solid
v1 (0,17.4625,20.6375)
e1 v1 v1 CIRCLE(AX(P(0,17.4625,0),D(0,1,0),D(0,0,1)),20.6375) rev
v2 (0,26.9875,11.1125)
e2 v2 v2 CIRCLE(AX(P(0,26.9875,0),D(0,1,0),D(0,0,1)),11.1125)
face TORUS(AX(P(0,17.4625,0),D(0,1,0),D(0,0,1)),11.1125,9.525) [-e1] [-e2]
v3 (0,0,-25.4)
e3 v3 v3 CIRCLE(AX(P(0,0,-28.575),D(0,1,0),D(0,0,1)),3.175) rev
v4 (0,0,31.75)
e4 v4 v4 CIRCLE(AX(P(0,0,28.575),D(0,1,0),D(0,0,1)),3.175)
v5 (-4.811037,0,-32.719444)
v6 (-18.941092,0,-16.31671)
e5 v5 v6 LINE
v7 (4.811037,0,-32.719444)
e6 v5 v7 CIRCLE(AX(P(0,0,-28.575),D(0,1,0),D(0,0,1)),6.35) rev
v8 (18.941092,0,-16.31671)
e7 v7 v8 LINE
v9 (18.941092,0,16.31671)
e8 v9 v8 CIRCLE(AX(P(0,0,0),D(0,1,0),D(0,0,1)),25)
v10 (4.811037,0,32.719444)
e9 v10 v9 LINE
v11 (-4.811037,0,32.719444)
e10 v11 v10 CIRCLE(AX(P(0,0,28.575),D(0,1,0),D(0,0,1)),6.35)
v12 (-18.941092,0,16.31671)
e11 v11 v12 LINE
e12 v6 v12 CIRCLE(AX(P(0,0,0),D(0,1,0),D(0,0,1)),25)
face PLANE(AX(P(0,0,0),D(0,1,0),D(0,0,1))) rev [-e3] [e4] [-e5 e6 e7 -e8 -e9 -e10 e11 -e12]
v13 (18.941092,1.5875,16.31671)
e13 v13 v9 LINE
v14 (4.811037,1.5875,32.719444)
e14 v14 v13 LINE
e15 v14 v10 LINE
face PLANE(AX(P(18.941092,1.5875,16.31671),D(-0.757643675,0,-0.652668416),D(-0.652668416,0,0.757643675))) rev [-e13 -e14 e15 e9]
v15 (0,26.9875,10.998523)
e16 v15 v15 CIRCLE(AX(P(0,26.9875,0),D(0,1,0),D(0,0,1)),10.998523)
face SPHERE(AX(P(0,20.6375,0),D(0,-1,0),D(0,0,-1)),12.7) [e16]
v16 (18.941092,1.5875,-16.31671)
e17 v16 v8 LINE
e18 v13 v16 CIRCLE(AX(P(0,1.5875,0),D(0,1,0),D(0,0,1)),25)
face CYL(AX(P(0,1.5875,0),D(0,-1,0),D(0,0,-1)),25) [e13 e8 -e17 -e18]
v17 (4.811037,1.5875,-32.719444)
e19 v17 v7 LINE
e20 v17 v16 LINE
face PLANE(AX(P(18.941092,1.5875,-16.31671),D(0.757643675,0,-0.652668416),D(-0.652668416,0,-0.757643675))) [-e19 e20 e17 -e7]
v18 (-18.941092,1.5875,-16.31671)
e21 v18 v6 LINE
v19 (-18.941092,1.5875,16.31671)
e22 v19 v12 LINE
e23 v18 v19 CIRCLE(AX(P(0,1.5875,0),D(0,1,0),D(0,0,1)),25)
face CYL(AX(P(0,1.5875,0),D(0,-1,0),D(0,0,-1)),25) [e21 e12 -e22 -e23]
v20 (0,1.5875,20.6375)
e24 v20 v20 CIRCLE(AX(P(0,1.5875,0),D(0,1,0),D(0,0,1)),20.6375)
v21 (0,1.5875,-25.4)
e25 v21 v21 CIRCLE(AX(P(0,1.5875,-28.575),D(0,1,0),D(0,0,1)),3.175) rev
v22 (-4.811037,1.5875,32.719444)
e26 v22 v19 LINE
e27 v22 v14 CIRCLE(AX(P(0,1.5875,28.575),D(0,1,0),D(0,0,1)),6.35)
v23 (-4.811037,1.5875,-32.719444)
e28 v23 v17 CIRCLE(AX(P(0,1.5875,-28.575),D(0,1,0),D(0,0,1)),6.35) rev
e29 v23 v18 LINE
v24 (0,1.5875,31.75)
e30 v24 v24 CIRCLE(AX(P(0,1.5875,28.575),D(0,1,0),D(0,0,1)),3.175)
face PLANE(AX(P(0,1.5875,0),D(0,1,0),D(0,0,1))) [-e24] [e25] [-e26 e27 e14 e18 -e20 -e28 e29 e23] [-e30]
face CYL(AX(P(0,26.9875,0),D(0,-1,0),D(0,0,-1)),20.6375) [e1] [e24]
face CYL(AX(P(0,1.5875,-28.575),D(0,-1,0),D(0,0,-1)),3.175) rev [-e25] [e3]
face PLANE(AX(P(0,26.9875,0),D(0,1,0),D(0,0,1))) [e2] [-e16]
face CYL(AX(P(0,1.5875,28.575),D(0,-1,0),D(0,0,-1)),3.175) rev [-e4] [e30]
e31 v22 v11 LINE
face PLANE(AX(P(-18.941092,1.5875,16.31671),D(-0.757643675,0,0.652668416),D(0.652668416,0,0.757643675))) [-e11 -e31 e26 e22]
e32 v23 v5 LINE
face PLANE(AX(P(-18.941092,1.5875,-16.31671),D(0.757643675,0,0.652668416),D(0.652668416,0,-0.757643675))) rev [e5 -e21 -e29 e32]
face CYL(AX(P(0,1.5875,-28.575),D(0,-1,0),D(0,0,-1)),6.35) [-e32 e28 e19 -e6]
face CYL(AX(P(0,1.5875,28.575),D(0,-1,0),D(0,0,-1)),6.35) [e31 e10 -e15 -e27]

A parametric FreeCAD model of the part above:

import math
import FreeCAD as App
import Part
import Sketcher

V = App.Vector
Q = App.Units.Quantity


def edges_at(feature, points):
    """Names of the edges that pass closest to the given points."""
    edges = feature.Shape.Edges
    near = lambda p: min(range(len(edges)), key=lambda i: edges[i].distToShape(Part.Vertex(*p))[0])
    return sorted({f"Edge{near(p) + 1}" for p in points})

doc = App.newDocument("Part")
body = doc.addObject("PartDesign::Body", "Body")

# Sketch on XZ plane
sketch1 = doc.addObject("Sketcher::SketchObject", "Sketch")
body.addObject(sketch1)
sketch1.AttachmentSupport = (doc.XZ_Plane, [""])
sketch1.MapMode = "FlatFace"
sketch1.addGeometry([
    Part.ArcOfCircle(Part.Circle(V(0, 0, 0), V(0, 0, 1), 25), math.radians(139.256908), math.radians(220.743092)),  # 0
    Part.LineSegment(V(-18.941092, 16.31671, 0), V(-4.811037, 32.719444, 0)),  # 1
    Part.ArcOfCircle(Part.Circle(V(0, 28.575, 0), V(0, 0, 1), 6.35), math.radians(40.743092), math.radians(139.256908)),  # 2
    Part.LineSegment(V(4.811037, 32.719444, 0), V(18.941092, 16.31671, 0)),  # 3
    Part.ArcOfCircle(Part.Circle(V(0, 0, 0), V(0, 0, 1), 25), math.radians(-40.743092), math.radians(40.743092)),  # 4
    Part.LineSegment(V(18.941092, -16.31671, 0), V(4.811037, -32.719444, 0)),  # 5
    Part.ArcOfCircle(Part.Circle(V(0, -28.575, 0), V(0, 0, 1), 6.35), math.radians(-139.256908), math.radians(-40.743092)),  # 6
    Part.LineSegment(V(-4.811037, -32.719444, 0), V(-18.941092, -16.31671, 0)),  # 7
    Part.Circle(V(0, 28.575, 0), V(0, 0, 1), 3.175),  # 8
    Part.Circle(V(0, -28.575, 0), V(0, 0, 1), 3.175),  # 9
], False)
sketch1.addConstraint([
    Sketcher.Constraint("Tangent", 0, 1, 1, 1),
    Sketcher.Constraint("Tangent", 1, 2, 2, 2),
    Sketcher.Constraint("Tangent", 2, 1, 3, 1),
    Sketcher.Constraint("Tangent", 3, 2, 4, 2),
    Sketcher.Constraint("Tangent", 4, 1, 5, 1),
    Sketcher.Constraint("Tangent", 5, 2, 6, 2),
    Sketcher.Constraint("Tangent", 6, 1, 7, 1),
    Sketcher.Constraint("Tangent", 7, 2, 0, 2),
    Sketcher.Constraint("Coincident", 0, 3, -1, 1),
    Sketcher.Constraint("Coincident", 4, 3, -1, 1),
    Sketcher.Constraint("Coincident", 8, 3, 2, 3),
    Sketcher.Constraint("Coincident", 9, 3, 6, 3),
    Sketcher.Constraint("Equal", 0, 4),
    Sketcher.Constraint("Equal", 2, 6),
    Sketcher.Constraint("Equal", 8, 9),
    Sketcher.Constraint("Symmetric", 2, 3, 6, 3, -1, 1),
    Sketcher.Constraint("PointOnObject", 2, 3, -2),
    Sketcher.Constraint("Diameter", 8, Q("0.25 in")),
    Sketcher.Constraint("Radius", 2, Q("0.25 in")),
    Sketcher.Constraint("Radius", 0, Q("25 mm")),
    Sketcher.Constraint("DistanceY", 6, 3, 2, 3, Q("2.25 in")),
])
pad1 = doc.addObject("PartDesign::Pad", "Pad")
body.addObject(pad1)
pad1.Profile = sketch1
pad1.Length = Q("0.0625 in")
pad1.Reversed = True

# Sketch on XZ plane
sketch2 = doc.addObject("Sketcher::SketchObject", "Sketch001")
body.addObject(sketch2)
sketch2.AttachmentSupport = (doc.XZ_Plane, [""])
sketch2.MapMode = "FlatFace"
sketch2.AttachmentOffset = App.Placement(V(0, 0, -0.0625 * 25.4), App.Rotation())
sketch2.addGeometry(Part.Circle(V(0, 0, 0), V(0, 0, 1), 20.6375), False)
sketch2.addConstraint([
    Sketcher.Constraint("Coincident", 0, 3, -1, 1),
    Sketcher.Constraint("Diameter", 0, Q("1.625 in")),
])
pad2 = doc.addObject("PartDesign::Pad", "Pad001")
body.addObject(pad2)
pad2.Profile = sketch2
pad2.Length = Q("1 in")
pad2.Reversed = True
doc.recompute()

fillet = doc.addObject("PartDesign::Fillet", "Fillet")
body.addObject(fillet)
fillet.Base = (pad2, edges_at(pad2, [(0, 26.988, -20.637)]))
fillet.Radius = Q("0.375 in")

# Sketch on YZ plane
sketch3 = doc.addObject("Sketcher::SketchObject", "Sketch002")
body.addObject(sketch3)
sketch3.AttachmentSupport = (doc.YZ_Plane, [""])
sketch3.MapMode = "FlatFace"
sketch3.addGeometry([
    Part.LineSegment(V(26.9875, 0, 0), V(26.9875, -10.998523, 0)),
    Part.ArcOfCircle(Part.Circle(V(20.6375, 0, 0), V(0, 0, 1), 12.7), math.radians(-60), math.radians(0)),
    Part.LineSegment(V(33.3375, 0, 0), V(26.9875, 0, 0)),
], False)
sketch3.addConstraint([
    Sketcher.Constraint("Coincident", 0, 2, 1, 1),
    Sketcher.Constraint("Coincident", 1, 2, 2, 1),
    Sketcher.Constraint("Coincident", 2, 2, 0, 1),
    Sketcher.Constraint("Vertical", 0),
    Sketcher.Constraint("Horizontal", 2),
    Sketcher.Constraint("PointOnObject", 1, 3, -1),
    Sketcher.Constraint("PointOnObject", 1, 2, -1),
    Sketcher.Constraint("Radius", 1, Q("0.5 in")),
    Sketcher.Constraint("DistanceX", 2, 2, 2, 1, Q("0.25 in")),
    Sketcher.Constraint("DistanceX", -1, 1, 1, 3, Q("0.8125 in")),
])
revolution = doc.addObject("PartDesign::Revolution", "Revolution")
body.addObject(revolution)
revolution.Profile = sketch3
revolution.ReferenceAxis = (sketch3, ["H_Axis"])
revolution.Angle = 360

doc.recompute()
